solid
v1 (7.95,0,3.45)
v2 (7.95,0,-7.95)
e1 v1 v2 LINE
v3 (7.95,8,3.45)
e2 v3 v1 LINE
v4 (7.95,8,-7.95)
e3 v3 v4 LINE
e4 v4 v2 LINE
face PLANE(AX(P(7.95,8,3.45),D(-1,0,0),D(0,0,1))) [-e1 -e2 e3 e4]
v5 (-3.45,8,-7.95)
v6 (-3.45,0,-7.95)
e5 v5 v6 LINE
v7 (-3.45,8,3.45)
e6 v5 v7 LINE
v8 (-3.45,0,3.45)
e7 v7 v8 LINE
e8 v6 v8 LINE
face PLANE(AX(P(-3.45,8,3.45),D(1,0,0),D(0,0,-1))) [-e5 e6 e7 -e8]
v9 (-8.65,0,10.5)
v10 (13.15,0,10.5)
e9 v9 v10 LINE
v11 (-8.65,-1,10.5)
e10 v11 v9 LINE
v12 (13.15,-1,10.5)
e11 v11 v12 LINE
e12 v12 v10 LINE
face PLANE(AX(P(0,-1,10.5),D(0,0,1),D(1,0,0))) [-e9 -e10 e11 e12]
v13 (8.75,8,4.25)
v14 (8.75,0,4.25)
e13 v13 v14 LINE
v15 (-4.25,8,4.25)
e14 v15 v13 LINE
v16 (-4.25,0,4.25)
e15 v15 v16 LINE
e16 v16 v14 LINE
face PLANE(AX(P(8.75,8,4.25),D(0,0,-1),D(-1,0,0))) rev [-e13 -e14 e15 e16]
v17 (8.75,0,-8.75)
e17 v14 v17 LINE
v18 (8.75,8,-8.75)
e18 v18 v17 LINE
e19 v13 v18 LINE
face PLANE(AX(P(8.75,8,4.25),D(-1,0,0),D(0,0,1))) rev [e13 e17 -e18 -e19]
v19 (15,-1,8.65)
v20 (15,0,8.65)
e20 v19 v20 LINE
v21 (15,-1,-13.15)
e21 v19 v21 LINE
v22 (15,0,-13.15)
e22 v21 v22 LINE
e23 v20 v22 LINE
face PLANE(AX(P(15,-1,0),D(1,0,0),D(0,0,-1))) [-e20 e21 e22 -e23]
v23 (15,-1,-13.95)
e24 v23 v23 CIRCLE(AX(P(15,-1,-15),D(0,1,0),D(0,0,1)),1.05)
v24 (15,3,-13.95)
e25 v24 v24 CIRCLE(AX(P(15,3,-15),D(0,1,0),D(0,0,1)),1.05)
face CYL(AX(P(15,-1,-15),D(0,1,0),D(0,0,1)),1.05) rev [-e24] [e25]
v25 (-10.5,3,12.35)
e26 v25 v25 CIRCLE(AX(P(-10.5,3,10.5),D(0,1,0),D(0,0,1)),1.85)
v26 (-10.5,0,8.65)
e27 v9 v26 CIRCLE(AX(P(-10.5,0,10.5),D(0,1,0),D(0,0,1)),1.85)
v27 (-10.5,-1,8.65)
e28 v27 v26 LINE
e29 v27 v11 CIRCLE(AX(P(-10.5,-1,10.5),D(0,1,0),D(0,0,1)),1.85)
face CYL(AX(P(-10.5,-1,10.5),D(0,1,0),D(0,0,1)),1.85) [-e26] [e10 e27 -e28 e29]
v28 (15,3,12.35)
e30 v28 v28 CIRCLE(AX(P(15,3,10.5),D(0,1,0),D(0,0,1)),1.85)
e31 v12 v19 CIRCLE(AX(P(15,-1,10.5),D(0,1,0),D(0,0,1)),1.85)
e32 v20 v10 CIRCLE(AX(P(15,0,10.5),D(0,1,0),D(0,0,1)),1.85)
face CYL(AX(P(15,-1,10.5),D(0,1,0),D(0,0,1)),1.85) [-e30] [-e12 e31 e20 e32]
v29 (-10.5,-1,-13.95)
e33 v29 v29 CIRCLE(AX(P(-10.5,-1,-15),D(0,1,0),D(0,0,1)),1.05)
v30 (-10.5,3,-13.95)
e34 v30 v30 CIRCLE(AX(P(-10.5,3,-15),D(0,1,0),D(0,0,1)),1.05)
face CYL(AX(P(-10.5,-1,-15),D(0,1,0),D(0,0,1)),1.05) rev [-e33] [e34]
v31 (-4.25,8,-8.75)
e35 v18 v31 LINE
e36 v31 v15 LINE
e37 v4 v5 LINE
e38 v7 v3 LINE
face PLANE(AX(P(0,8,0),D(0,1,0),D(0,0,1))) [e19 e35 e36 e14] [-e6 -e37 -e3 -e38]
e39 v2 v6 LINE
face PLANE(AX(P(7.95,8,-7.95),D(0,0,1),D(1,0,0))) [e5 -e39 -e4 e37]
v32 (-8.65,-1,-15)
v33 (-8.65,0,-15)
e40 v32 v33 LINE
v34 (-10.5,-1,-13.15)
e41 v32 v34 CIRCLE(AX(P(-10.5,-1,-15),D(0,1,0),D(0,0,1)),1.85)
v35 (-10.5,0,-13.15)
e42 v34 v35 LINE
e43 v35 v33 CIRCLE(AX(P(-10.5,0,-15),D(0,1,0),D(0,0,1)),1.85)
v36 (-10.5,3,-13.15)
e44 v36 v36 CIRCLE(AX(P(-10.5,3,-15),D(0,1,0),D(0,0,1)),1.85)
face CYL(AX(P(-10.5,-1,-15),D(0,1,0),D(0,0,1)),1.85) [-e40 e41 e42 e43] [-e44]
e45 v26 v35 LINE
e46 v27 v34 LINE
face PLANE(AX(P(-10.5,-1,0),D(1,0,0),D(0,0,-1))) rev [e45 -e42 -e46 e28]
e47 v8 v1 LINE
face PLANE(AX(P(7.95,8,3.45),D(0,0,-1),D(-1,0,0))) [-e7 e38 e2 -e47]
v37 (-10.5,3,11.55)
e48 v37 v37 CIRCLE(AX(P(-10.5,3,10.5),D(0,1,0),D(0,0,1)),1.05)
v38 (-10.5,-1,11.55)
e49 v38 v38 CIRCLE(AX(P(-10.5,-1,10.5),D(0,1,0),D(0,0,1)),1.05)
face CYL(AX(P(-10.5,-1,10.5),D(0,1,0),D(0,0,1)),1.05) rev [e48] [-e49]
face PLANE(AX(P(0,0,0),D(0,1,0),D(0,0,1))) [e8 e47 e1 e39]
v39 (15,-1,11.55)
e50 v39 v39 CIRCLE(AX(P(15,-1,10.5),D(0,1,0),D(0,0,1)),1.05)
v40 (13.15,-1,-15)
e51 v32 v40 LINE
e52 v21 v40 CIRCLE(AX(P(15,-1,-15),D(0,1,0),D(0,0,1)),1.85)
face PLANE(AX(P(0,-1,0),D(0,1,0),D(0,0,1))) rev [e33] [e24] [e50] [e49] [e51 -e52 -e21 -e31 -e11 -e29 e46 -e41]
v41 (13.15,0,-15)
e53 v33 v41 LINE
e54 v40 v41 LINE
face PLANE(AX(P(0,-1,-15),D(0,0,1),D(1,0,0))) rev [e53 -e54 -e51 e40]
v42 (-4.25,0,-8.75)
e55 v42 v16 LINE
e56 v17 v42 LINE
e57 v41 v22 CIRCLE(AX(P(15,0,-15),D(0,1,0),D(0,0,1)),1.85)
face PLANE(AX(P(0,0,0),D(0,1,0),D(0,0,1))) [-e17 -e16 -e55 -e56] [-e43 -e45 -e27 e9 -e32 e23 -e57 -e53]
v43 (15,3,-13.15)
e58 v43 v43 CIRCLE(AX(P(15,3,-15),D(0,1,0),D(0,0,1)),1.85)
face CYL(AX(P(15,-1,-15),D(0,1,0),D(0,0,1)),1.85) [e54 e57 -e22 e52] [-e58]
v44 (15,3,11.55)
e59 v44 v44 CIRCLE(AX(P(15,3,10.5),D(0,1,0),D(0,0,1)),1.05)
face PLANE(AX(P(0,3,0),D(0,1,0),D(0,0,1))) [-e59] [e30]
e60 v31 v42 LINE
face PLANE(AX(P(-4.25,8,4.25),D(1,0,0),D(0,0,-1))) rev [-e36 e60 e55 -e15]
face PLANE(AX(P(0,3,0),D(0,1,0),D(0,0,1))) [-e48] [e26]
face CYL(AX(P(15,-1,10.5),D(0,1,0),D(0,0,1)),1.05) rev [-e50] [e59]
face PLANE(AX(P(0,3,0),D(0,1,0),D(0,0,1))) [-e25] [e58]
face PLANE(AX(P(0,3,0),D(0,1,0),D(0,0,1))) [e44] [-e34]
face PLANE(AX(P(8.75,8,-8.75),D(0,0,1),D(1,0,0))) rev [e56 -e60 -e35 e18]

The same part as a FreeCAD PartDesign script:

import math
import FreeCAD as App
import Part
import Sketcher

V = App.Vector
Q = App.Units.Quantity

doc = App.newDocument("Part")
params = doc.addObject("Spreadsheet::Sheet", "Params")
for row, (alias, value) in enumerate([
    ("sketch1_diameter", "2.1 mm"),
    ("sketch1_radius", "1.85 mm"),
    ("sketch1_width", "21.8 mm"),
    ("pad1_length", "1 mm"),
    ("sketch2_diameter", "3.7 mm"),
    ("sketch2_diameter2", "2.1 mm"),
    ("pad2_length", "3 mm"),
    ("sketch3_width", "13 mm"),
    ("sketch3_width2", "11.4 mm"),
    ("pad3_length", "8 mm"),
], start=1):
    params.set(f"A{row}", alias)
    params.set(f"B{row}", "=" + value)
    params.setAlias(f"B{row}", alias)

body = doc.addObject("PartDesign::Body", "Body")

sketch1 = body.newObject("Sketcher::SketchObject", "Sketch")
sketch1.AttachmentSupport = (doc.getObject("XZ_Plane"), [""])
sketch1.MapMode = "FlatFace"
sketch1.addGeometry([
    Part.ArcOfCircle(Part.Circle(V(-10.5, 10.5, 0), V(0, 0, 1), 1.9), math.radians(0), math.radians(270)),
    Part.LineSegment(V(-8.7, 10.5, 0), V(13.2, 10.5, 0)),
    Part.ArcOfCircle(Part.Circle(V(15, 10.5, 0), V(0, 0, 1), 1.9), math.radians(-90), math.radians(180)),
    Part.LineSegment(V(15, 8.7, 0), V(15, -13.2, 0)),
    Part.ArcOfCircle(Part.Circle(V(15, -15, 0), V(0, 0, 1), 1.9), math.radians(180), math.radians(450)),
    Part.LineSegment(V(13.2, -15, 0), V(-8.7, -15, 0)),
    Part.ArcOfCircle(Part.Circle(V(-10.5, -15, 0), V(0, 0, 1), 1.9), math.radians(90), math.radians(360)),
    Part.LineSegment(V(-10.5, -13.2, 0), V(-10.5, 8.7, 0)),
    Part.Circle(V(-10.5, 10.5, 0), V(0, 0, 1), 1.1),
    Part.Circle(V(15, 10.5, 0), V(0, 0, 1), 1.1),
    Part.Circle(V(-10.5, -15, 0), V(0, 0, 1), 1.1),
    Part.Circle(V(15, -15, 0), V(0, 0, 1), 1.1),
], False)
sketch1.addConstraint([
    Sketcher.Constraint("Coincident", 0, 1, 1, 1),
    Sketcher.Constraint("Coincident", 1, 2, 2, 2),
    Sketcher.Constraint("Coincident", 2, 1, 3, 1),
    Sketcher.Constraint("Coincident", 3, 2, 4, 2),
    Sketcher.Constraint("Coincident", 4, 1, 5, 1),
    Sketcher.Constraint("Coincident", 5, 2, 6, 2),
    Sketcher.Constraint("Coincident", 6, 1, 7, 1),
    Sketcher.Constraint("Coincident", 7, 2, 0, 2),
    Sketcher.Constraint("Horizontal", 1),
    Sketcher.Constraint("Vertical", 3),
    Sketcher.Constraint("Horizontal", 5),
    Sketcher.Constraint("Vertical", 7),
    Sketcher.Constraint("Coincident", 8, 3, 0, 3),
    Sketcher.Constraint("Coincident", 9, 3, 2, 3),
    Sketcher.Constraint("Coincident", 10, 3, 6, 3),
    Sketcher.Constraint("Coincident", 11, 3, 4, 3),
    Sketcher.Constraint("Equal", 0, 2),
    Sketcher.Constraint("Equal", 2, 4),
    Sketcher.Constraint("Equal", 4, 6),
    Sketcher.Constraint("Equal", 8, 9),
    Sketcher.Constraint("Equal", 9, 10),
    Sketcher.Constraint("Equal", 10, 11),
    Sketcher.Constraint("Horizontal", 0, 3, 2, 3),
    Sketcher.Constraint("Horizontal", 4, 3, 6, 3),
    Sketcher.Constraint("Horizontal", 9, 3, 0, 1),
    Sketcher.Constraint("Horizontal", 11, 3, 4, 1),
    Sketcher.Constraint("Vertical", 2, 3, 4, 3),
    Sketcher.Constraint("Vertical", 0, 3, 6, 3),
    Sketcher.Constraint("Vertical", 11, 3, 2, 1),
    Sketcher.Constraint("Vertical", 10, 3, 6, 1),
    Sketcher.Constraint("Equal", 5, 3),
    Sketcher.Constraint("Diameter", 8, Q("2.1 mm")),
    Sketcher.Constraint("Radius", 0, Q("1.85 mm")),
    Sketcher.Constraint("DistanceX", 1, 1, 1, 2, Q("21.8 mm")),
    Sketcher.Constraint("DistanceX", -1, 1, 2, 3, Q("15 mm")),
    Sketcher.Constraint("DistanceY", 4, 3, -1, 1, Q("15 mm")),
])
sketch1.setExpression("Constraints[31]", "Params.sketch1_diameter")
sketch1.setExpression("Constraints[32]", "Params.sketch1_radius")
sketch1.setExpression("Constraints[33]", "Params.sketch1_width")
pad1 = body.newObject("PartDesign::Pad", "Pad")
pad1.Profile = sketch1
pad1.setExpression("Length", "Params.pad1_length")

sketch2 = body.newObject("Sketcher::SketchObject", "Sketch001")
sketch2.AttachmentSupport = (doc.getObject("XZ_Plane"), [""])
sketch2.MapMode = "FlatFace"
sketch2.AttachmentOffset = App.Placement(V(0, 0, -3), App.Rotation())
sketch2.addGeometry([
    Part.Circle(V(15, 10.5, 0), V(0, 0, 1), 1.9),
    Part.Circle(V(15, 10.5, 0), V(0, 0, 1), 1.1),
    Part.Circle(V(15, -15, 0), V(0, 0, 1), 1.9),
    Part.Circle(V(15, -15, 0), V(0, 0, 1), 1.1),
    Part.Circle(V(-10.5, 10.5, 0), V(0, 0, 1), 1.9),
    Part.Circle(V(-10.5, 10.5, 0), V(0, 0, 1), 1.1),
    Part.Circle(V(-10.5, -15, 0), V(0, 0, 1), 1.9),
    Part.Circle(V(-10.5, -15, 0), V(0, 0, 1), 1.1),
], False)
sketch2.addConstraint([
    Sketcher.Constraint("Coincident", 1, 3, 0, 3),
    Sketcher.Constraint("Coincident", 3, 3, 2, 3),
    Sketcher.Constraint("Coincident", 5, 3, 4, 3),
    Sketcher.Constraint("Coincident", 7, 3, 6, 3),
    Sketcher.Constraint("Equal", 0, 2),
    Sketcher.Constraint("Equal", 1, 3),
    Sketcher.Constraint("Equal", 2, 4),
    Sketcher.Constraint("Equal", 3, 5),
    Sketcher.Constraint("Equal", 4, 6),
    Sketcher.Constraint("Equal", 5, 7),
    Sketcher.Constraint("Horizontal", 1, 3, 4, 3),
    Sketcher.Constraint("Horizontal", 3, 3, 6, 3),
    Sketcher.Constraint("Vertical", 1, 3, 2, 3),
    Sketcher.Constraint("Vertical", 5, 3, 6, 3),
    Sketcher.Constraint("Diameter", 0, Q("3.7 mm")),
    Sketcher.Constraint("Diameter", 1, Q("2.1 mm")),
    Sketcher.Constraint("DistanceX", -1, 1, 0, 3, Q("15 mm")),
    Sketcher.Constraint("DistanceY", 2, 3, -1, 1, Q("15 mm")),
    Sketcher.Constraint("DistanceY", -1, 1, 0, 3, Q("10.5 mm")),
    Sketcher.Constraint("DistanceX", 4, 3, -1, 1, Q("10.5 mm")),
])
sketch2.setExpression("Constraints[14]", "Params.sketch2_diameter")
sketch2.setExpression("Constraints[15]", "Params.sketch2_diameter2")
pad2 = body.newObject("PartDesign::Pad", "Pad001")
pad2.Profile = sketch2
pad2.setExpression("Length", "Params.pad2_length")

sketch3 = body.newObject("Sketcher::SketchObject", "Sketch002")
sketch3.AttachmentSupport = (doc.getObject("XZ_Plane"), [""])
sketch3.MapMode = "FlatFace"
sketch3.addGeometry([
    Part.LineSegment(V(-4, 4, 0), V(9, 4, 0)),
    Part.LineSegment(V(9, 4, 0), V(9, -9, 0)),
    Part.LineSegment(V(9, -9, 0), V(-4, -9, 0)),
    Part.LineSegment(V(-4, -9, 0), V(-4, 4, 0)),
    Part.LineSegment(V(8, 3, 0), V(-3, 3, 0)),
    Part.LineSegment(V(-3, 3, 0), V(-3, -8, 0)),
    Part.LineSegment(V(-3, -8, 0), V(8, -8, 0)),
    Part.LineSegment(V(8, -8, 0), V(8, 3, 0)),
], False)
sketch3.addConstraint([
    Sketcher.Constraint("Coincident", 0, 2, 1, 1),
    Sketcher.Constraint("Coincident", 1, 2, 2, 1),
    Sketcher.Constraint("Coincident", 2, 2, 3, 1),
    Sketcher.Constraint("Coincident", 3, 2, 0, 1),
    Sketcher.Constraint("Coincident", 4, 2, 5, 1),
    Sketcher.Constraint("Coincident", 5, 2, 6, 1),
    Sketcher.Constraint("Coincident", 6, 2, 7, 1),
    Sketcher.Constraint("Coincident", 7, 2, 4, 1),
    Sketcher.Constraint("Horizontal", 0),
    Sketcher.Constraint("Vertical", 1),
    Sketcher.Constraint("Horizontal", 2),
    Sketcher.Constraint("Vertical", 3),
    Sketcher.Constraint("Horizontal", 4),
    Sketcher.Constraint("Vertical", 5),
    Sketcher.Constraint("Horizontal", 6),
    Sketcher.Constraint("Vertical", 7),
    Sketcher.Constraint("Equal", 2, 1),
    Sketcher.Constraint("Equal", 6, 5),
    Sketcher.Constraint("DistanceX", 0, 1, 0, 2, Q("13 mm")),
    Sketcher.Constraint("DistanceX", 4, 2, 4, 1, Q("11.4 mm")),
    Sketcher.Constraint("DistanceX", 3, 2, 4, 2, Q("0.8 mm")),
    Sketcher.Constraint("DistanceY", 4, 2, 3, 2, Q("0.8 mm")),
    Sketcher.Constraint("DistanceX", -1, 1, 0, 2, Q("8.75 mm")),
    Sketcher.Constraint("DistanceY", -1, 1, 0, 2, Q("4.25 mm")),
])
sketch3.setExpression("Constraints[18]", "Params.sketch3_width")
sketch3.setExpression("Constraints[19]", "Params.sketch3_width2")
pad3 = body.newObject("PartDesign::Pad", "Pad002")
pad3.Profile = sketch3
pad3.setExpression("Length", "Params.pad3_length")
pad3.Reversed = True

doc.recompute()
